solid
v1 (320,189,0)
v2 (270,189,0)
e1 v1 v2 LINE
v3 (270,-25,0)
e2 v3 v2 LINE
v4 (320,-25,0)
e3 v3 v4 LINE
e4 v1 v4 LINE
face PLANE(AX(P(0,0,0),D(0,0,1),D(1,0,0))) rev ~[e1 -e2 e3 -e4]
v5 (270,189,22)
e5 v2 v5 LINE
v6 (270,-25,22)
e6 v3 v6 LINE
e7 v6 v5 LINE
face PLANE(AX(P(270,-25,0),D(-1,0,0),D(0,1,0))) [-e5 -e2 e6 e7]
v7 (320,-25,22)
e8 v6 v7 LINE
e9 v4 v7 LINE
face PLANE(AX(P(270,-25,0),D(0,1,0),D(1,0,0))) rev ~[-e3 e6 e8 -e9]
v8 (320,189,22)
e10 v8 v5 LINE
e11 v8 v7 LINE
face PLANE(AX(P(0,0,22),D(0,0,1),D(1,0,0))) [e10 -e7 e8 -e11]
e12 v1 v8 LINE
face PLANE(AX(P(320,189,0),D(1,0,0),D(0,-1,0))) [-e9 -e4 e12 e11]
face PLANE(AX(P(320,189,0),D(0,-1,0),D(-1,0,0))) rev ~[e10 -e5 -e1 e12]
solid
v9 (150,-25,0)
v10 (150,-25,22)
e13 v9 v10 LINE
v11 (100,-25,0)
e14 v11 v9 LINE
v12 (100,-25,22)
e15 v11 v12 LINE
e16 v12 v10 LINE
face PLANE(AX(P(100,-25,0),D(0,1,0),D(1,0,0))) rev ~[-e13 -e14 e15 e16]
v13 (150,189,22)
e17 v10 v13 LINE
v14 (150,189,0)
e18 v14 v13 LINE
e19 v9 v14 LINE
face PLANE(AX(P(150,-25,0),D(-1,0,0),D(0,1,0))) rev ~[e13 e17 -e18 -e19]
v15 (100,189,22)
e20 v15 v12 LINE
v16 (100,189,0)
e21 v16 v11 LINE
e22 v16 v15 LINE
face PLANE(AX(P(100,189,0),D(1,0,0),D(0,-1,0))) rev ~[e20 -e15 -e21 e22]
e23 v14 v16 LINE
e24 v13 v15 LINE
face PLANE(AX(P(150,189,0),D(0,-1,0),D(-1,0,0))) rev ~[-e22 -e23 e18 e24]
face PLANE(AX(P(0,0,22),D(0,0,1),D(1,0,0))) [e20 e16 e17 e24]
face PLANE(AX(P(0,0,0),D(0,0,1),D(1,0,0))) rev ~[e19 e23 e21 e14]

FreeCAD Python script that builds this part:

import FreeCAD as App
import Part
import Sketcher

V = App.Vector
Q = App.Units.Quantity


def add_polygon(sketch, points):
    """Adds a closed chain of lines whose ends are joined by coincident constraints."""
    first, n = sketch.GeometryCount, len(points)
    for a, b in zip(points, points[1:] + points[:1]):
        sketch.addGeometry(Part.LineSegment(App.Vector(*a, 0), App.Vector(*b, 0)), False)
    for i in range(n):
        sketch.addConstraint(Sketcher.Constraint("Coincident", first + i, 2, first + (i + 1) % n, 1))

doc = App.newDocument("Part")
params = doc.addObject("Spreadsheet::Sheet", "Params")
for row, (alias, value) in enumerate([
    ("sketch1_width", "50 mm"),
    ("sketch1_height", "214 mm"),
    ("pad1_length", "22 mm"),
], start=1):
    params.set(f"A{row}", alias)
    params.set(f"B{row}", "=" + value)
    params.setAlias(f"B{row}", alias)

body = doc.addObject("PartDesign::Body", "Body")
body.AllowCompound = True

sketch1 = body.newObject("Sketcher::SketchObject", "Sketch")
sketch1.AttachmentSupport = (doc.getObject("XY_Plane"), [""])
sketch1.MapMode = "FlatFace"
add_polygon(sketch1, [(100, 189), (100, -25), (150, -25), (150, 189)])
add_polygon(sketch1, [(270, 189), (270, -25), (320, -25), (320, 189)])
sketch1.addConstraint(Sketcher.Constraint("Vertical", 0))
sketch1.addConstraint(Sketcher.Constraint("Horizontal", 1))
sketch1.addConstraint(Sketcher.Constraint("Vertical", 2))
sketch1.addConstraint(Sketcher.Constraint("Horizontal", 3))
sketch1.addConstraint(Sketcher.Constraint("Vertical", 4))
sketch1.addConstraint(Sketcher.Constraint("Horizontal", 5))
sketch1.addConstraint(Sketcher.Constraint("Vertical", 6))
sketch1.addConstraint(Sketcher.Constraint("Horizontal", 7))
sketch1.addConstraint(Sketcher.Constraint("Horizontal", 1, 2, 4, 2))
sketch1.addConstraint(Sketcher.Constraint("Horizontal", 3, 2, 6, 2))
sketch1.addConstraint(Sketcher.Constraint("Equal", 3, 5))
sketch1.addConstraint(Sketcher.Constraint("DistanceX", 1, 1, 1, 2, Q("50 mm")))
sketch1.addConstraint(Sketcher.Constraint("DistanceY", 0, 2, 0, 1, Q("214 mm")))
sketch1.addConstraint(Sketcher.Constraint("DistanceX", -1, 1, 0, 2, Q("100 mm")))
sketch1.addConstraint(Sketcher.Constraint("DistanceY", 0, 2, -1, 1, Q("25 mm")))
sketch1.addConstraint(Sketcher.Constraint("DistanceX", -1, 1, 4, 2, Q("270 mm")))
sketch1.setExpression("Constraints[19]", "Params.sketch1_width")
sketch1.setExpression("Constraints[20]", "Params.sketch1_height")
pad1 = body.newObject("PartDesign::Pad", "Pad")
pad1.Profile = sketch1
pad1.setExpression("Length", "Params.pad1_length")

doc.recompute()
